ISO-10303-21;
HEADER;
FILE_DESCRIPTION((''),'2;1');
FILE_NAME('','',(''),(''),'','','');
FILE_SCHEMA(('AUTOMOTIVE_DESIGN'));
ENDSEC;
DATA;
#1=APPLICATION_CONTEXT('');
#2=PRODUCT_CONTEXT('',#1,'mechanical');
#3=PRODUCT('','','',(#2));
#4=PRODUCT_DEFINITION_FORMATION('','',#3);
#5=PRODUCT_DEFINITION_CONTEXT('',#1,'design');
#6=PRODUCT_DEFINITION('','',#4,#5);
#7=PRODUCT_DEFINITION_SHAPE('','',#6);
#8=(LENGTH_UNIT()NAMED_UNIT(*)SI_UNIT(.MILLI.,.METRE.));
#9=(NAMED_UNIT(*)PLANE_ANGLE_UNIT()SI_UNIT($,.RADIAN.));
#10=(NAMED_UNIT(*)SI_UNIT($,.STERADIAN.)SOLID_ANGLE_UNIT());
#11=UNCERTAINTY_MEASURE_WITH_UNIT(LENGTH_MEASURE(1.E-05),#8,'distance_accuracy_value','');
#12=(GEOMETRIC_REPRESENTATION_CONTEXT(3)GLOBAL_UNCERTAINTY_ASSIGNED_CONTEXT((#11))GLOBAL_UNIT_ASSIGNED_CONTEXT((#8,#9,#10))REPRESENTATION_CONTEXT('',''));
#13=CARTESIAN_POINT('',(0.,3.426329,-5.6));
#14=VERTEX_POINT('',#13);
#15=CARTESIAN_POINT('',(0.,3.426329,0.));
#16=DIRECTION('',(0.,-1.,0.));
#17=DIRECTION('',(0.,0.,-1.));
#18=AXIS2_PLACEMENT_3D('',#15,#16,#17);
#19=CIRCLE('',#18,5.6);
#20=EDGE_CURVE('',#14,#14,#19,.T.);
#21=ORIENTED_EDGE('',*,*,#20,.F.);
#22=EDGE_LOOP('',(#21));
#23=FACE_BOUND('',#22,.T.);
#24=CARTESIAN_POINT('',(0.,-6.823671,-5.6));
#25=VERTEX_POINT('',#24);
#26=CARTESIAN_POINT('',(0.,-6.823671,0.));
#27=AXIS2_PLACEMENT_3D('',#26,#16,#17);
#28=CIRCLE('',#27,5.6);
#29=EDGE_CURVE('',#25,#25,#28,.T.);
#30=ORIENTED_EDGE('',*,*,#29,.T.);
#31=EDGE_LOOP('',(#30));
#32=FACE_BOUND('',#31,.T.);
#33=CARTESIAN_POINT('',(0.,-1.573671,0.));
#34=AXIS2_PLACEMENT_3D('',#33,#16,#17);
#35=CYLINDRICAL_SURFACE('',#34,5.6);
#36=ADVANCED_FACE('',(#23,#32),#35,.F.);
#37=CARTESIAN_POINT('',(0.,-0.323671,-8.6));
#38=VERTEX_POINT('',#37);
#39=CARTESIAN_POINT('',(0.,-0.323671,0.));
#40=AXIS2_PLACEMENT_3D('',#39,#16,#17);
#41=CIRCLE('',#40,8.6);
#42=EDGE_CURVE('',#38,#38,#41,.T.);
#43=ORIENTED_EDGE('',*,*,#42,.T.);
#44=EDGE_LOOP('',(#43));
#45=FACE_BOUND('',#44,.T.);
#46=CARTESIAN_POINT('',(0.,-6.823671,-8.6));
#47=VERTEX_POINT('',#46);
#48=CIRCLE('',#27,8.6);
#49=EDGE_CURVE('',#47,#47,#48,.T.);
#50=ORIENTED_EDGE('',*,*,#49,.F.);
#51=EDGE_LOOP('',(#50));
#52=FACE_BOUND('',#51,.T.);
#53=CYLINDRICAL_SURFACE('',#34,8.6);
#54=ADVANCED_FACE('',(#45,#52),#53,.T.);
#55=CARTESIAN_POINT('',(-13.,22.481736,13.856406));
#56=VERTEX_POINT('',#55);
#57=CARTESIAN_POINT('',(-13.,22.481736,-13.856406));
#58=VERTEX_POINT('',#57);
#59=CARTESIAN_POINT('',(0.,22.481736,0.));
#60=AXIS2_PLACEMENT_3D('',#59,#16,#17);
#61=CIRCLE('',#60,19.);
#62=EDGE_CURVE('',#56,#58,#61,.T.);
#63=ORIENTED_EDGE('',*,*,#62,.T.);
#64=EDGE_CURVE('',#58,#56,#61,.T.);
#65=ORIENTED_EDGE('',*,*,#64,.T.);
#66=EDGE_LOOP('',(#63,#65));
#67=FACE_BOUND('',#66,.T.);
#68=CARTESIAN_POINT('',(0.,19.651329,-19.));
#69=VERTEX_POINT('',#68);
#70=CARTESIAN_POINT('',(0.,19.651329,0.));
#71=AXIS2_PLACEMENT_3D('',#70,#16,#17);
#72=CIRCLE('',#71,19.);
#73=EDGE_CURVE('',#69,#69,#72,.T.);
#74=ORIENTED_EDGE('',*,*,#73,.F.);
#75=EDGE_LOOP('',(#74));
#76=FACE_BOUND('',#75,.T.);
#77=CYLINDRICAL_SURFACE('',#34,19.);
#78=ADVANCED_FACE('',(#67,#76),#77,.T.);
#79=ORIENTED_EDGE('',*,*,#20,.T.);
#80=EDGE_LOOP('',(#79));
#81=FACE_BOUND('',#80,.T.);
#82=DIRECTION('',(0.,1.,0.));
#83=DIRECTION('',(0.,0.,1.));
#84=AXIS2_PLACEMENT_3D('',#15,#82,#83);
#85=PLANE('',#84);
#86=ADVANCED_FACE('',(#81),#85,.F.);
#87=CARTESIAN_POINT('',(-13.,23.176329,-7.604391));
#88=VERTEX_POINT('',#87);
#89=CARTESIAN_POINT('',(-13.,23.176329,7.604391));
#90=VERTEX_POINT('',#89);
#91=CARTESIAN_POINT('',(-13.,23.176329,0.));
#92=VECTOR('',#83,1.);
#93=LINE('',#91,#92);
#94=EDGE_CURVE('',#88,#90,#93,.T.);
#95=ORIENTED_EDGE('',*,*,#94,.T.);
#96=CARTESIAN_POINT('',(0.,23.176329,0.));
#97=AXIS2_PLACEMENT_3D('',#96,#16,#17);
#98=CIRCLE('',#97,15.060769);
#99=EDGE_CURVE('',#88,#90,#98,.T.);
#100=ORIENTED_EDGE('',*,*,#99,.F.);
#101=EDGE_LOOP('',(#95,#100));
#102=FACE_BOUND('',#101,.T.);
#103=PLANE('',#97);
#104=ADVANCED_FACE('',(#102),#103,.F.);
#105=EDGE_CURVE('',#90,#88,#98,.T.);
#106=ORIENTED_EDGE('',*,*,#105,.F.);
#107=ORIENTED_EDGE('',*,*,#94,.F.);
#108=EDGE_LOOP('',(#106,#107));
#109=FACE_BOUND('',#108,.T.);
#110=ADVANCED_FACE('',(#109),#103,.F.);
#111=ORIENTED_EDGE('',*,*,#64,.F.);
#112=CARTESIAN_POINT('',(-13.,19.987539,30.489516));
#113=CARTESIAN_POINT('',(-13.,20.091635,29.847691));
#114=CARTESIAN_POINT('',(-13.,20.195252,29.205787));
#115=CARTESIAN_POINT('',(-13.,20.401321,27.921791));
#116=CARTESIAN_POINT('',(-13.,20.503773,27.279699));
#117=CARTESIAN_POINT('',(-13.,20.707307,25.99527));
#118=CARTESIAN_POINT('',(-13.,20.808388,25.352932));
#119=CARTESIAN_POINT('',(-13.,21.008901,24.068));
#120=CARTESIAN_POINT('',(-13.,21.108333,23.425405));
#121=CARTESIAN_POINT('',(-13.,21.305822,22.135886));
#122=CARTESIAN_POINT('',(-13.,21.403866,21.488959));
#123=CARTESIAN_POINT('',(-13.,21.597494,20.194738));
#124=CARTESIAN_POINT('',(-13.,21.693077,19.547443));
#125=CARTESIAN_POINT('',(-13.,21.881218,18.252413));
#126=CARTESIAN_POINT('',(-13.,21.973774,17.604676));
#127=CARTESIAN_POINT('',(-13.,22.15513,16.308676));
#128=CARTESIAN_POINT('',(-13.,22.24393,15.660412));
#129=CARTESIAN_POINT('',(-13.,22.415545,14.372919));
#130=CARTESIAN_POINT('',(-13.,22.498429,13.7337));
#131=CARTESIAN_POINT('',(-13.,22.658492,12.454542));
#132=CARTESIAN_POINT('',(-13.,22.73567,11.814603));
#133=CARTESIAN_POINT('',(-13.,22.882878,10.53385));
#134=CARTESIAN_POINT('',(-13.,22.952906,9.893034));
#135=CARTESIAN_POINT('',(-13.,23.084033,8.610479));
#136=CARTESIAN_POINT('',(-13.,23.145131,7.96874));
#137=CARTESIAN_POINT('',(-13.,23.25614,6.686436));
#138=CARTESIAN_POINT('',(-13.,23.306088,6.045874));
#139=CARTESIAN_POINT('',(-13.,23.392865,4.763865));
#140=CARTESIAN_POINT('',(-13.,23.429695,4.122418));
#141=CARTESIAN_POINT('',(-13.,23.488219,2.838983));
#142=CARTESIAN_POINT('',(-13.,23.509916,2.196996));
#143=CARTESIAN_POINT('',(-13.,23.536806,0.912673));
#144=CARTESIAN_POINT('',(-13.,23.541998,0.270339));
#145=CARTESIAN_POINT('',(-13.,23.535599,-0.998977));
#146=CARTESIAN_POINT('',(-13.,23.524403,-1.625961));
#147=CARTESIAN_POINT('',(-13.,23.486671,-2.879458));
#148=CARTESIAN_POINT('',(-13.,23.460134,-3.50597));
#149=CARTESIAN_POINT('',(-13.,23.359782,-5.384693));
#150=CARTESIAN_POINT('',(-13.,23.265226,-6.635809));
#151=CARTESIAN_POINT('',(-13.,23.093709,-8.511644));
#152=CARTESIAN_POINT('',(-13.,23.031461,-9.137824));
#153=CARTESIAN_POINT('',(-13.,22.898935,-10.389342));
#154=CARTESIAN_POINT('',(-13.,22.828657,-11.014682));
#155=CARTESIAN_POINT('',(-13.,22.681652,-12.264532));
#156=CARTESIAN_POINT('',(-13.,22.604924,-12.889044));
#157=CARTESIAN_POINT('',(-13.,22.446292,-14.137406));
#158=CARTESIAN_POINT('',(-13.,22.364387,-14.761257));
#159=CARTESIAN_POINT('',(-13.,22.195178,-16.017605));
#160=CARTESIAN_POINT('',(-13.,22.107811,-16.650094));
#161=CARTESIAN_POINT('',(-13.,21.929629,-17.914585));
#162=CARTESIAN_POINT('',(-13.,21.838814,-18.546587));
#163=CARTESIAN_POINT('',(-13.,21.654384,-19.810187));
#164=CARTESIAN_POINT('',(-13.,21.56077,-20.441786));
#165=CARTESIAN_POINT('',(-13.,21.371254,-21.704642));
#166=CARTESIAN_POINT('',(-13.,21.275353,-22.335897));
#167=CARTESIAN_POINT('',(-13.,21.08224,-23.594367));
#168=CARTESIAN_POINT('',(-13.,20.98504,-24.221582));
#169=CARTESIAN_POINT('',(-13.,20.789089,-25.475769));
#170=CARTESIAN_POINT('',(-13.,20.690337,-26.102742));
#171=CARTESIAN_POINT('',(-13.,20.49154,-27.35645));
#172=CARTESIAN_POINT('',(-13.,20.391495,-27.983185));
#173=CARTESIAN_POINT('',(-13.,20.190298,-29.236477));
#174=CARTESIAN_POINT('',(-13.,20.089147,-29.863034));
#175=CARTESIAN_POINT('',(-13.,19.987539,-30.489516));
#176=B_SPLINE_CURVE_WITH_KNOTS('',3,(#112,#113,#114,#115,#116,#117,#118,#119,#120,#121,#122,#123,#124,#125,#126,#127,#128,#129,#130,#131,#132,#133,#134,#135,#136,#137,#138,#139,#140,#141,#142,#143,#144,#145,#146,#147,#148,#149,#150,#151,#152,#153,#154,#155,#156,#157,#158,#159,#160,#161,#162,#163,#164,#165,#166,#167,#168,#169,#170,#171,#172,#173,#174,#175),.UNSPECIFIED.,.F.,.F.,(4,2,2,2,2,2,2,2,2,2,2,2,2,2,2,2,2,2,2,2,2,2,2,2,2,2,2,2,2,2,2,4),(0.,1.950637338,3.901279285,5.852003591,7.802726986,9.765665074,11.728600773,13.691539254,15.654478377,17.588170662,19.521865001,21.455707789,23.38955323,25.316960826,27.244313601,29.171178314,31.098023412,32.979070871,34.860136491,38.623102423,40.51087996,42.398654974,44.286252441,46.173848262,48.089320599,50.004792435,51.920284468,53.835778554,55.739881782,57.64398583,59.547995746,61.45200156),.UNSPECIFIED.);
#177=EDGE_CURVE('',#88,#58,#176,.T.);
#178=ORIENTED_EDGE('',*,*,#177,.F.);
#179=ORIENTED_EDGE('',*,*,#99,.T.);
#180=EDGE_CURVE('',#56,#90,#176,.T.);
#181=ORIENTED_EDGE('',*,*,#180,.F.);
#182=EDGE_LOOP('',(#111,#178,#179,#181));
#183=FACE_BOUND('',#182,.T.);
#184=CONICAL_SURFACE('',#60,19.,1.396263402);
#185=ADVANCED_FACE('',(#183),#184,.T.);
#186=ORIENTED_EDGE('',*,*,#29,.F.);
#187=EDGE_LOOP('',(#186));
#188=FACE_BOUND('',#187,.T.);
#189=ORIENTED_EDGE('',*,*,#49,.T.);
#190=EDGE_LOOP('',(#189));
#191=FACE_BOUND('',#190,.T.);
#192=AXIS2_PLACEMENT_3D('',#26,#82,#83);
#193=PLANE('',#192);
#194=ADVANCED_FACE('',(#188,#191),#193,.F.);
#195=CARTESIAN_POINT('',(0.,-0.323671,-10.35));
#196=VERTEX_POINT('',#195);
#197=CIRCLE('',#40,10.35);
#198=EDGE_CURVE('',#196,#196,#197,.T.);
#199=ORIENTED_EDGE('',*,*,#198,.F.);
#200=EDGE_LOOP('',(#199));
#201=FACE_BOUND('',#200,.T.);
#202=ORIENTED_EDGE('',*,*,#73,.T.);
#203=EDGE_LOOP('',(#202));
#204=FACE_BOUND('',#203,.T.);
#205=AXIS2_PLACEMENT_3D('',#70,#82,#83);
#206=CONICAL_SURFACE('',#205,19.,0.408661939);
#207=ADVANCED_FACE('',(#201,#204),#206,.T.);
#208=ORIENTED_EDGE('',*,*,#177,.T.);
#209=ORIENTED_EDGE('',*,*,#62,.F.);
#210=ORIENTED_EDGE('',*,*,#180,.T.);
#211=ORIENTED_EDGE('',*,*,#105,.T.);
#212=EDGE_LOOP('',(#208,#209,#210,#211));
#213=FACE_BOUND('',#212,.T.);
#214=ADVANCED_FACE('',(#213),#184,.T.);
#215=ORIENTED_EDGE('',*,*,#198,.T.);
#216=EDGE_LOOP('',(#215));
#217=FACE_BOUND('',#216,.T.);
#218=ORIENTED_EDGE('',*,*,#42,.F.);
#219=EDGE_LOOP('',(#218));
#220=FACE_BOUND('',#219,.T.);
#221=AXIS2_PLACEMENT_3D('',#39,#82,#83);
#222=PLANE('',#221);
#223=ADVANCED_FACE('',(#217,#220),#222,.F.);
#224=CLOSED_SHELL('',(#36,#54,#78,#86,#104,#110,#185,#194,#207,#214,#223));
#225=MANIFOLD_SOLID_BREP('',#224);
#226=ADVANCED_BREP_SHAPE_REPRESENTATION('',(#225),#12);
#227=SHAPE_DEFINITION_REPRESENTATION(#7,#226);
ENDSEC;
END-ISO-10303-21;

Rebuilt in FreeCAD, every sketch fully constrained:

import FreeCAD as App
import Part
import Sketcher

V = App.Vector
Q = App.Units.Quantity


def add_polygon(sketch, points):
    """Adds a closed chain of lines whose ends are joined by coincident constraints."""
    first, n = sketch.GeometryCount, len(points)
    for a, b in zip(points, points[1:] + points[:1]):
        sketch.addGeometry(Part.LineSegment(App.Vector(*a, 0), App.Vector(*b, 0)), False)
    for i in range(n):
        sketch.addConstraint(Sketcher.Constraint("Coincident", first + i, 2, first + (i + 1) % n, 1))

doc = App.newDocument("Part")
body = doc.addObject("PartDesign::Body", "Body")

sketch1 = doc.addObject("Sketcher::SketchObject", "Sketch")
body.addObject(sketch1)
sketch1.AttachmentSupport = (doc.XY_Plane, [""])
sketch1.MapMode = "FlatFace"
add_polygon(sketch1, [(-15.1, 23.2), (-19, 22.5), (-19, 19.7), (-10.3, -0.3), (-8.6, -0.3), (-8.6, -6.8), (-5.6, -6.8), (-5.6, 3.4), (-3, 3.4), (-3, -1.6), (0, -1.6), (0, 23.2)])
sketch1.addConstraint([
    Sketcher.Constraint("Vertical", 1),
    Sketcher.Constraint("Horizontal", 3),
    Sketcher.Constraint("Vertical", 4),
    Sketcher.Constraint("Horizontal", 5),
    Sketcher.Constraint("Vertical", 6),
    Sketcher.Constraint("Horizontal", 7),
    Sketcher.Constraint("Vertical", 8),
    Sketcher.Constraint("Horizontal", 9),
    Sketcher.Constraint("Vertical", 10),
    Sketcher.Constraint("Horizontal", 11),
    Sketcher.Constraint("PointOnObject", 9, 2, -2),
    Sketcher.Constraint("Equal", 5, 9),
    Sketcher.Constraint("DistanceX", 5, 1, 5, 2, 3.0),
    Sketcher.Constraint("DistanceY", 8, 2, 8, 1, 5.0),
    Sketcher.Constraint("Angle", 0, Q("-170 deg")),
    Sketcher.Constraint("Distance", 0, 4.0),
    Sketcher.Constraint("DistanceX", 7, 1, 7, 2, 2.6),
    Sketcher.Constraint("DistanceY", 4, 2, 4, 1, 6.5),
    Sketcher.Constraint("DistanceX", 0, 2, -1, 1, 19.0),
    Sketcher.Constraint("DistanceX", 3, 1, 3, 2, 1.75),
    Sketcher.Constraint("DistanceY", 6, 1, 6, 2, 10.25),
    Sketcher.Constraint("DistanceY", 10, 1, 10, 2, 24.75),
    Sketcher.Constraint("DistanceY", 2, 2, 1, 2, 19.975),
    Sketcher.Constraint("DistanceY", -1, 1, 1, 2, 19.651329),
])
revolution = doc.addObject("PartDesign::Revolution", "Revolution")
body.addObject(revolution)
revolution.Profile = sketch1
revolution.ReferenceAxis = (sketch1, ["V_Axis"])
revolution.Angle = 360

sketch2 = doc.addObject("Sketcher::SketchObject", "Sketch001")
body.addObject(sketch2)
sketch2.AttachmentSupport = (doc.XZ_Plane, [""])
sketch2.MapMode = "FlatFace"
sketch2.AttachmentOffset = App.Placement(V(0, 0, 1.573671), App.Rotation())
sketch2.addGeometry(Part.Circle(V(0, 0, 0), V(0, 0, 1), 3), False)
sketch2.addConstraint([
    Sketcher.Constraint("Coincident", 0, 3, -1, 1),
    Sketcher.Constraint("Diameter", 0, 6.0),
])
pocket1 = doc.addObject("PartDesign::Pocket", "Pocket")
body.addObject(pocket1)
pocket1.Profile = sketch2
pocket1.Length = 5

doc.recompute()
